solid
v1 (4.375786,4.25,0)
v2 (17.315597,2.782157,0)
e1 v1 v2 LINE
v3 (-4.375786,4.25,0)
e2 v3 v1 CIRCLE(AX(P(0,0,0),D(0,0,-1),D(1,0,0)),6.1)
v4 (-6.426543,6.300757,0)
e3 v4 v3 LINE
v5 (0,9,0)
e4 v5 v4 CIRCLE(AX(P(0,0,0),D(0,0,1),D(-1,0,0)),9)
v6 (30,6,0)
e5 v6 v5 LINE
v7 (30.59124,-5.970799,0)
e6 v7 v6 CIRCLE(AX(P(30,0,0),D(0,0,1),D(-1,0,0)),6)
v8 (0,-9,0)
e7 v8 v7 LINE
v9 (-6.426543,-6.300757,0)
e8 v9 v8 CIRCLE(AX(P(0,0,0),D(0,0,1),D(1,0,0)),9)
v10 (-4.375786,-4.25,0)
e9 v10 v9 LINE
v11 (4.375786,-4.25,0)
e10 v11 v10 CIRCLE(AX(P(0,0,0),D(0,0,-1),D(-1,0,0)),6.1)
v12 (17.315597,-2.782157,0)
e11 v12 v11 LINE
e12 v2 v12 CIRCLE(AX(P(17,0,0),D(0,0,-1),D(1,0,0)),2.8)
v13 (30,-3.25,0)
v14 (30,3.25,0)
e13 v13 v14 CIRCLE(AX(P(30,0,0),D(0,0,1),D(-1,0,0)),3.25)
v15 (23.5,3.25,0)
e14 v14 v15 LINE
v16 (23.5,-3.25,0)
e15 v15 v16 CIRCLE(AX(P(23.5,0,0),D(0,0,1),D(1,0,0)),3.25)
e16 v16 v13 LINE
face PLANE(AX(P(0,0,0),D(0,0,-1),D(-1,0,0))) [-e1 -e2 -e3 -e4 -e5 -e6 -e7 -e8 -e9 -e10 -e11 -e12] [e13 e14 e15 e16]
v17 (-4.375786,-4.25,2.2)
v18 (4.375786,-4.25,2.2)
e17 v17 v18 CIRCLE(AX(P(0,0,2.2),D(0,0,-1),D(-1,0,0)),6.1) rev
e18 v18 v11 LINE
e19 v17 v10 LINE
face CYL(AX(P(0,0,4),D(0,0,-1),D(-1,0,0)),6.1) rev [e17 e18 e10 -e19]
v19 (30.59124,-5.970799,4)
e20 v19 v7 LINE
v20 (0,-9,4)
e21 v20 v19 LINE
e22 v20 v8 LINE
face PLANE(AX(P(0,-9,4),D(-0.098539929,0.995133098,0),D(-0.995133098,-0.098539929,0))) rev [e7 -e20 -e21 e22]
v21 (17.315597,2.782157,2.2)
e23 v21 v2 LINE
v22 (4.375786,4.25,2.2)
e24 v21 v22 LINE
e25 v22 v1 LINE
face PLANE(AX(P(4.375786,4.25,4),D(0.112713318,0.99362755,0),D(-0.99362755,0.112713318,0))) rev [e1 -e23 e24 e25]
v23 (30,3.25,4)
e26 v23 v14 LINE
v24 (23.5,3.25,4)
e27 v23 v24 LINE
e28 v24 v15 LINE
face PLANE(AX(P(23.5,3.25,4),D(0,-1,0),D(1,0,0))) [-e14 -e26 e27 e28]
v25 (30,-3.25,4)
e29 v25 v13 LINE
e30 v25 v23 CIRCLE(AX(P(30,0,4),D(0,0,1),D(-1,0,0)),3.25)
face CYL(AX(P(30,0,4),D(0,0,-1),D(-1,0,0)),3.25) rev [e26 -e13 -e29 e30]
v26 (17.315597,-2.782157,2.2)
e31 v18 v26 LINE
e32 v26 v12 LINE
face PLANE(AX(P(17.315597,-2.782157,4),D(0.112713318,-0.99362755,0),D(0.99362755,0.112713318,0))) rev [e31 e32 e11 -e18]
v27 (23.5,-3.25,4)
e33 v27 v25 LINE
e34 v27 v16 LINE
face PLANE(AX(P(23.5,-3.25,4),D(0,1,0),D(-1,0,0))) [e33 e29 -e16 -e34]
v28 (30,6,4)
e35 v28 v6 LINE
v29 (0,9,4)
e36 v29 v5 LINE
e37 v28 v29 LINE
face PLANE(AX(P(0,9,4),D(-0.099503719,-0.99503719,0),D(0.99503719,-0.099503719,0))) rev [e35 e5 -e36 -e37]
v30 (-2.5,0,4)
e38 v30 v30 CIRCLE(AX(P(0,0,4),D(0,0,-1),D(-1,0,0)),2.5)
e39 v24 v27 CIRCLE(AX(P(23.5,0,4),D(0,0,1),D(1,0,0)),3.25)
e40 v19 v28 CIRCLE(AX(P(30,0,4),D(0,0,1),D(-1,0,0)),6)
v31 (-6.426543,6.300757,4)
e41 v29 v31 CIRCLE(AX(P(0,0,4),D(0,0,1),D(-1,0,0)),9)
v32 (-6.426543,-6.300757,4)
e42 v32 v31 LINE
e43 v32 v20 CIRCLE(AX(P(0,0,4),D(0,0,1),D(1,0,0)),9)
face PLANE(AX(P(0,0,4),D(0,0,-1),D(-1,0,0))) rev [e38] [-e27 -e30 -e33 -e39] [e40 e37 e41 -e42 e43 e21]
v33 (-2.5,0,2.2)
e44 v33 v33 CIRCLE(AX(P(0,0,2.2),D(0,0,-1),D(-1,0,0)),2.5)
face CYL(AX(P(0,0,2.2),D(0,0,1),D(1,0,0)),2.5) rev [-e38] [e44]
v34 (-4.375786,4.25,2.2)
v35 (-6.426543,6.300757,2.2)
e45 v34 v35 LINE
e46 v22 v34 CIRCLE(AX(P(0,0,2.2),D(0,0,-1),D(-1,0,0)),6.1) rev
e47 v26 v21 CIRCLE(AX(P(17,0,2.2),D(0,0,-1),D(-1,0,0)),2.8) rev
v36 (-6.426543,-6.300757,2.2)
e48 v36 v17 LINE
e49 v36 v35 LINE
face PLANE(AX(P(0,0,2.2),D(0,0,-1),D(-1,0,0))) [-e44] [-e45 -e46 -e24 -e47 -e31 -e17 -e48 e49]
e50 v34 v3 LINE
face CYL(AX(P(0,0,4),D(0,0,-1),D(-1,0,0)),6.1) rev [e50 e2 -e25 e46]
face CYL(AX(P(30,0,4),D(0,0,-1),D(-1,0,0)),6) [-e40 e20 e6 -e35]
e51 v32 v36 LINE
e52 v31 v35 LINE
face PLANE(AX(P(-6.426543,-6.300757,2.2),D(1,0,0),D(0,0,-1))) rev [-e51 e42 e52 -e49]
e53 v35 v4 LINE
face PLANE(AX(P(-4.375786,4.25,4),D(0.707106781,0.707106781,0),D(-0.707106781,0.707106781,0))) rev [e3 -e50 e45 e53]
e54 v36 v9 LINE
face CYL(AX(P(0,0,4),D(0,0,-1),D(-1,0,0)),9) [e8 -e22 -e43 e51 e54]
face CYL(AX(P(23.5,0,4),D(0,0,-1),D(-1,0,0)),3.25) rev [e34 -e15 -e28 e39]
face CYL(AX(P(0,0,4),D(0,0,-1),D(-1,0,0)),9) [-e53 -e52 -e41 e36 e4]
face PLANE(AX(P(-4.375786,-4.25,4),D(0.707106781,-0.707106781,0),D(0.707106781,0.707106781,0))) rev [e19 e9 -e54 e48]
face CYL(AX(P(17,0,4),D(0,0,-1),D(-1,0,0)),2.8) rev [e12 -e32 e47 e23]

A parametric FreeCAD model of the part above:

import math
import FreeCAD as App
import Part
import Sketcher

V = App.Vector

doc = App.newDocument("Part")
body = doc.addObject("PartDesign::Body", "Body")

# Sketch on XY plane
sketch1 = body.newObject("Sketcher::SketchObject", "Sketch")
sketch1.AttachmentSupport = (doc.getObject("XY_Plane"), [""])
sketch1.MapMode = "FlatFace"
sketch1.addGeometry(Part.LineSegment(V(-6.4, 6.3, 0), V(-4.4, 4.2, 0)), False)
sketch1.addGeometry(Part.ArcOfCircle(Part.Circle(V(0, 0, 0), V(0, 0, 1), 6.1), math.radians(44), math.radians(136)), False)
sketch1.addGeometry(Part.LineSegment(V(4.4, 4.2, 0), V(17.3, 2.8, 0)), False)
sketch1.addGeometry(Part.ArcOfCircle(Part.Circle(V(17, 0, 0), V(0, 0, 1), 2.8), math.radians(-84), math.radians(84)), False)
sketch1.addGeometry(Part.LineSegment(V(17.3, -2.8, 0), V(4.4, -4.2, 0)), False)
sketch1.addGeometry(Part.ArcOfCircle(Part.Circle(V(0, 0, 0), V(0, 0, 1), 6.1), math.radians(-136), math.radians(-44)), False)
sketch1.addGeometry(Part.LineSegment(V(-4.4, -4.2, 0), V(-6.4, -6.3, 0)), False)
sketch1.addGeometry(Part.ArcOfCircle(Part.Circle(V(0, 0, 0), V(0, 0, 1), 9), math.radians(-136), math.radians(-90)), False)
sketch1.addGeometry(Part.LineSegment(V(0, -9, 0), V(30.6, -6, 0)), False)
sketch1.addGeometry(Part.ArcOfCircle(Part.Circle(V(30, 0, 0), V(0, 0, 1), 6), math.radians(-84), math.radians(90)), False)
sketch1.addGeometry(Part.LineSegment(V(30, 6, 0), V(0, 9, 0)), False)
sketch1.addGeometry(Part.ArcOfCircle(Part.Circle(V(0, 0, 0), V(0, 0, 1), 9), math.radians(90), math.radians(136)), False)
sketch1.addGeometry(Part.LineSegment(V(23.5, 3.2, 0), V(30, 3.2, 0)), False)
sketch1.addGeometry(Part.ArcOfCircle(Part.Circle(V(30, 0, 0), V(0, 0, 1), 3.2), math.radians(-90), math.radians(90)), False)
sketch1.addGeometry(Part.LineSegment(V(30, -3.2, 0), V(23.5, -3.2, 0)), False)
sketch1.addGeometry(Part.ArcOfCircle(Part.Circle(V(23.5, 0, 0), V(0, 0, 1), 3.2), math.radians(90), math.radians(270)), False)
sketch1.addConstraint(Sketcher.Constraint("Coincident", 0, 2, 1, 2))
sketch1.addConstraint(Sketcher.Constraint("Coincident", 1, 1, 2, 1))
sketch1.addConstraint(Sketcher.Constraint("Tangent", 2, 2, 3, 2))
sketch1.addConstraint(Sketcher.Constraint("Tangent", 3, 1, 4, 1))
sketch1.addConstraint(Sketcher.Constraint("Coincident", 4, 2, 5, 2))
sketch1.addConstraint(Sketcher.Constraint("Coincident", 5, 1, 6, 1))
sketch1.addConstraint(Sketcher.Constraint("Coincident", 6, 2, 7, 1))
sketch1.addConstraint(Sketcher.Constraint("Coincident", 7, 2, 8, 1))
sketch1.addConstraint(Sketcher.Constraint("Tangent", 8, 2, 9, 1))
sketch1.addConstraint(Sketcher.Constraint("Coincident", 9, 2, 10, 1))
sketch1.addConstraint(Sketcher.Constraint("Coincident", 10, 2, 11, 1))
sketch1.addConstraint(Sketcher.Constraint("Coincident", 11, 2, 0, 1))
sketch1.addConstraint(Sketcher.Constraint("Tangent", 12, 2, 13, 2))
sketch1.addConstraint(Sketcher.Constraint("Tangent", 13, 1, 14, 1))
sketch1.addConstraint(Sketcher.Constraint("Tangent", 14, 2, 15, 2))
sketch1.addConstraint(Sketcher.Constraint("Tangent", 15, 1, 12, 1))
sketch1.addConstraint(Sketcher.Constraint("Horizontal", 12))
sketch1.addConstraint(Sketcher.Constraint("Horizontal", 14))
sketch1.addConstraint(Sketcher.Constraint("Coincident", 1, 3, -1, 1))
sketch1.addConstraint(Sketcher.Constraint("Coincident", 5, 3, -1, 1))
sketch1.addConstraint(Sketcher.Constraint("Coincident", 7, 3, -1, 1))
sketch1.addConstraint(Sketcher.Constraint("Coincident", 11, 3, -1, 1))
sketch1.addConstraint(Sketcher.Constraint("Coincident", 13, 3, 9, 3))
sketch1.addConstraint(Sketcher.Constraint("Equal", 1, 5))
sketch1.addConstraint(Sketcher.Constraint("Equal", 7, 11))
sketch1.addConstraint(Sketcher.Constraint("Symmetric", 2, 2, 3, 1, -1))
sketch1.addConstraint(Sketcher.Constraint("PointOnObject", 9, 3, -1))
sketch1.addConstraint(Sketcher.Constraint("PointOnObject", 7, 2, -2))
sketch1.addConstraint(Sketcher.Constraint("PointOnObject", 10, 2, -2))
sketch1.addConstraint(Sketcher.Constraint("Perpendicular", 0, 6))
sketch1.addConstraint(Sketcher.Constraint("Horizontal", 0, 2, 1, 1))
sketch1.addConstraint(Sketcher.Constraint("Horizontal", 4, 2, 5, 1))
sketch1.addConstraint(Sketcher.Constraint("Vertical", 13, 3, 9, 2))
sketch1.addConstraint(Sketcher.Constraint("Vertical", 6, 2, 11, 2))
sketch1.addConstraint(Sketcher.Constraint("Radius", 7, 9.0))
sketch1.addConstraint(Sketcher.Constraint("Radius", 9, 6.0))
sketch1.addConstraint(Sketcher.Constraint("Radius", 1, 6.1))
sketch1.addConstraint(Sketcher.Constraint("Radius", 3, 2.8))
sketch1.addConstraint(Sketcher.Constraint("Radius", 13, 3.25))
sketch1.addConstraint(Sketcher.Constraint("DistanceX", 12, 1, 12, 2, 6.5))
sketch1.addConstraint(Sketcher.Constraint("DistanceX", -1, 1, 3, 3, 17.0))
sketch1.addConstraint(Sketcher.Constraint("DistanceX", -1, 1, 9, 3, 30.0))
sketch1.addConstraint(Sketcher.Constraint("DistanceY", 4, 2, 1, 1, 8.5))
pad1 = body.newObject("PartDesign::Pad", "Pad")
pad1.Profile = sketch1
pad1.Length = 4

# Sketch on XY plane
sketch2 = body.newObject("Sketcher::SketchObject", "Sketch001")
sketch2.AttachmentSupport = (doc.getObject("XY_Plane"), [""])
sketch2.MapMode = "FlatFace"
sketch2.AttachmentOffset = App.Placement(V(0, 0, 4), App.Rotation())
sketch2.addGeometry(Part.LineSegment(V(13.3, -7.7, 0), V(0, -9, 0)), False)
sketch2.addGeometry(Part.ArcOfCircle(Part.Circle(V(0, 0, 0), V(0, 0, 1), 9), math.radians(-136), math.radians(-90)), False)
sketch2.addGeometry(Part.LineSegment(V(-6.4, -6.3, 0), V(-6.4, 6.3, 0)), False)
sketch2.addGeometry(Part.ArcOfCircle(Part.Circle(V(0, 0, 0), V(0, 0, 1), 9), math.radians(90), math.radians(136)), False)
sketch2.addGeometry(Part.LineSegment(V(0, 9, 0), V(13.3, 7.7, 0)), False)
sketch2.addGeometry(Part.ArcOfCircle(Part.Circle(V(12.5, 0, 0), V(0, 0, 1), 7.7), math.radians(-84), math.radians(84)), False)
sketch2.addGeometry(Part.Circle(V(0, 0, 0), V(0, 0, 1), 2.5), False)
sketch2.addConstraint(Sketcher.Constraint("Coincident", 0, 2, 1, 2))
sketch2.addConstraint(Sketcher.Constraint("Coincident", 1, 1, 2, 1))
sketch2.addConstraint(Sketcher.Constraint("Coincident", 2, 2, 3, 2))
sketch2.addConstraint(Sketcher.Constraint("Coincident", 3, 1, 4, 1))
sketch2.addConstraint(Sketcher.Constraint("Tangent", 4, 2, 5, 2))
sketch2.addConstraint(Sketcher.Constraint("Coincident", 5, 1, 0, 1))
sketch2.addConstraint(Sketcher.Constraint("Vertical", 2))
sketch2.addConstraint(Sketcher.Constraint("Coincident", 1, 3, -1, 1))
sketch2.addConstraint(Sketcher.Constraint("Coincident", 3, 3, -1, 1))
sketch2.addConstraint(Sketcher.Constraint("Coincident", 6, 3, -1, 1))
sketch2.addConstraint(Sketcher.Constraint("Equal", 1, 3))
sketch2.addConstraint(Sketcher.Constraint("PointOnObject", 0, 2, -2))
sketch2.addConstraint(Sketcher.Constraint("PointOnObject", 3, 1, -2))
sketch2.addConstraint(Sketcher.Constraint("Vertical", 4, 2, 5, 1))
sketch2.addConstraint(Sketcher.Constraint("Diameter", 6, 5.0))
sketch2.addConstraint(Sketcher.Constraint("Radius", 1, 9.0))
sketch2.addConstraint(Sketcher.Constraint("Radius", 5, 7.714477))
sketch2.addConstraint(Sketcher.Constraint("DistanceY", 2, 1, 2, 2, 12.601515))
sketch2.addConstraint(Sketcher.Constraint("DistanceY", 1, 1, 5, 3, 6.294251))
sketch2.addConstraint(Sketcher.Constraint("DistanceX", 5, 3, 4, 2, 0.767619))
pad2 = body.newObject("PartDesign::Pad", "Pad001")
pad2.Profile = sketch2
pad2.Length = 1.8
pad2.Reversed = True

doc.recompute()
